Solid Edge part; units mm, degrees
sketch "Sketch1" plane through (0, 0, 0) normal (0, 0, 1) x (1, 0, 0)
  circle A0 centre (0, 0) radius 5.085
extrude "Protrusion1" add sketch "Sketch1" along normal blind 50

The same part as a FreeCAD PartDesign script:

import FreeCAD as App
import Part
import Sketcher

doc = App.newDocument("Part")
params = doc.addObject("Spreadsheet::Sheet", "Params")
for row, (alias, value) in enumerate([
    ("sketch1_diameter", "10.17 mm"),
    ("pad1_length", "50 mm"),
], start=1):
    params.set(f"A{row}", alias)
    params.set(f"B{row}", "=" + value)
    params.setAlias(f"B{row}", alias)

body = doc.addObject("PartDesign::Body", "Body")

# Sketch on XY plane
sketch1 = doc.addObject("Sketcher::SketchObject", "Sketch")
body.addObject(sketch1)
sketch1.AttachmentSupport = (doc.XY_Plane, [""])
sketch1.MapMode = "FlatFace"
sketch1.addGeometry(Part.Circle(App.Vector(0, 0, 0), App.Vector(0, 0, 1), 5), False)
sketch1.addConstraint(Sketcher.Constraint("Coincident", 0, 3, -1, 1))
sketch1.addConstraint(Sketcher.Constraint("Diameter", 0, 10.17))
sketch1.setExpression("Constraints[1]", "Params.sketch1_diameter")
pad1 = doc.addObject("PartDesign::Pad", "Pad")
body.addObject(pad1)
pad1.Profile = sketch1
pad1.setExpression("Length", "Params.pad1_length")

doc.recompute()
